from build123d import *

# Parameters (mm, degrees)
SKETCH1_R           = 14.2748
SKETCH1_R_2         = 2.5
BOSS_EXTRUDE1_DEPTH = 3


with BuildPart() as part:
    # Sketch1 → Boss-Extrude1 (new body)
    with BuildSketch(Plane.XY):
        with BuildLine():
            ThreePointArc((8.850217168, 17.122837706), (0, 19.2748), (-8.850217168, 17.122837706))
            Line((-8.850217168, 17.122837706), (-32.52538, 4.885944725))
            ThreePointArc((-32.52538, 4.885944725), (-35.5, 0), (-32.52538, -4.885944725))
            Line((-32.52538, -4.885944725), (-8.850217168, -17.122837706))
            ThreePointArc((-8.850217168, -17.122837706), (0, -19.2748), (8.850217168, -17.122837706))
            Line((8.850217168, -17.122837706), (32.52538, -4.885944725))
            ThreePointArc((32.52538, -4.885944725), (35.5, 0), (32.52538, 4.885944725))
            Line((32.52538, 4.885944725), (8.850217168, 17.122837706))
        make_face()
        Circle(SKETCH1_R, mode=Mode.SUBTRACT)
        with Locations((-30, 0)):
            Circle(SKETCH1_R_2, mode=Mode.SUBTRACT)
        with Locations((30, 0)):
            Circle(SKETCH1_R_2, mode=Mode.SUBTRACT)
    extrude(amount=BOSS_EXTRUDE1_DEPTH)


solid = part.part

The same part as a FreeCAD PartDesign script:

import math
import FreeCAD as App
import Part
import Sketcher

V = App.Vector
Q = App.Units.Quantity

doc = App.newDocument("Part")
params = doc.addObject("Spreadsheet::Sheet", "Params")
for row, (alias, value) in enumerate([
    ("sketch1_diameter", "5 mm"),
    ("sketch1_radius", "5.5 mm"),
    ("pad1_length", "3 mm"),
], start=1):
    params.set(f"A{row}", alias)
    params.set(f"B{row}", "=" + value)
    params.setAlias(f"B{row}", alias)

body = doc.addObject("PartDesign::Body", "Body")

# Sketch on XY plane
sketch1 = doc.addObject("Sketcher::SketchObject", "Sketch")
body.addObject(sketch1)
sketch1.AttachmentSupport = (doc.XY_Plane, [""])
sketch1.MapMode = "FlatFace"
sketch1.addGeometry([
    Part.ArcOfCircle(Part.Circle(V(0, 0, 0), V(0, 0, 1), 19.3), math.radians(63), math.radians(117)),  # 0
    Part.LineSegment(V(-8.9, 17.1, 0), V(-32.5, 4.9, 0)),  # 1
    Part.ArcOfCircle(Part.Circle(V(-30, 0, 0), V(0, 0, 1), 5.5), math.radians(117), math.radians(243)),  # 2
    Part.LineSegment(V(-32.5, -4.9, 0), V(-8.9, -17.1, 0)),  # 3
    Part.ArcOfCircle(Part.Circle(V(0, 0, 0), V(0, 0, 1), 19.3), math.radians(-117), math.radians(-63)),  # 4
    Part.LineSegment(V(8.9, -17.1, 0), V(32.5, -4.9, 0)),  # 5
    Part.ArcOfCircle(Part.Circle(V(30, 0, 0), V(0, 0, 1), 5.5), math.radians(-63), math.radians(63)),  # 6
    Part.LineSegment(V(32.5, 4.9, 0), V(8.9, 17.1, 0)),  # 7
    Part.Circle(V(-30, 0, 0), V(0, 0, 1), 2.5),  # 8
    Part.Circle(V(0, 0, 0), V(0, 0, 1), 14.3),  # 9
    Part.Circle(V(30, 0, 0), V(0, 0, 1), 2.5),  # 10
], False)
sketch1.addConstraint([
    Sketcher.Constraint("Tangent", 0, 2, 1, 1),
    Sketcher.Constraint("Tangent", 1, 2, 2, 1),
    Sketcher.Constraint("Tangent", 2, 2, 3, 1),
    Sketcher.Constraint("Tangent", 3, 2, 4, 1),
    Sketcher.Constraint("Tangent", 4, 2, 5, 1),
    Sketcher.Constraint("Tangent", 5, 2, 6, 1),
    Sketcher.Constraint("Tangent", 6, 2, 7, 1),
    Sketcher.Constraint("Tangent", 7, 2, 0, 1),
    Sketcher.Constraint("Coincident", 0, 3, -1, 1),
    Sketcher.Constraint("Coincident", 4, 3, -1, 1),
    Sketcher.Constraint("Coincident", 9, 3, -1, 1),
    Sketcher.Constraint("Coincident", 8, 3, 2, 3),
    Sketcher.Constraint("Coincident", 10, 3, 6, 3),
    Sketcher.Constraint("Equal", 0, 4),
    Sketcher.Constraint("Equal", 2, 6),
    Sketcher.Constraint("Equal", 8, 10),
    Sketcher.Constraint("Symmetric", 2, 3, 6, 3, -1, 1),
    Sketcher.Constraint("PointOnObject", 2, 3, -1),
    Sketcher.Constraint("Diameter", 8, Q("5 mm")),
    Sketcher.Constraint("Radius", 2, Q("5.5 mm")),
    Sketcher.Constraint("DistanceX", 2, 3, -1, 1, Q("30 mm")),
    Sketcher.Constraint("Diameter", 9, Q("28.5496 mm")),
    Sketcher.Constraint("Radius", 0, Q("19.2748 mm")),
])
sketch1.setExpression("Constraints[18]", "Params.sketch1_diameter")
sketch1.setExpression("Constraints[19]", "Params.sketch1_radius")
pad1 = doc.addObject("PartDesign::Pad", "Pad")
body.addObject(pad1)
pad1.Profile = sketch1
pad1.setExpression("Length", "Params.pad1_length")

doc.recompute()
